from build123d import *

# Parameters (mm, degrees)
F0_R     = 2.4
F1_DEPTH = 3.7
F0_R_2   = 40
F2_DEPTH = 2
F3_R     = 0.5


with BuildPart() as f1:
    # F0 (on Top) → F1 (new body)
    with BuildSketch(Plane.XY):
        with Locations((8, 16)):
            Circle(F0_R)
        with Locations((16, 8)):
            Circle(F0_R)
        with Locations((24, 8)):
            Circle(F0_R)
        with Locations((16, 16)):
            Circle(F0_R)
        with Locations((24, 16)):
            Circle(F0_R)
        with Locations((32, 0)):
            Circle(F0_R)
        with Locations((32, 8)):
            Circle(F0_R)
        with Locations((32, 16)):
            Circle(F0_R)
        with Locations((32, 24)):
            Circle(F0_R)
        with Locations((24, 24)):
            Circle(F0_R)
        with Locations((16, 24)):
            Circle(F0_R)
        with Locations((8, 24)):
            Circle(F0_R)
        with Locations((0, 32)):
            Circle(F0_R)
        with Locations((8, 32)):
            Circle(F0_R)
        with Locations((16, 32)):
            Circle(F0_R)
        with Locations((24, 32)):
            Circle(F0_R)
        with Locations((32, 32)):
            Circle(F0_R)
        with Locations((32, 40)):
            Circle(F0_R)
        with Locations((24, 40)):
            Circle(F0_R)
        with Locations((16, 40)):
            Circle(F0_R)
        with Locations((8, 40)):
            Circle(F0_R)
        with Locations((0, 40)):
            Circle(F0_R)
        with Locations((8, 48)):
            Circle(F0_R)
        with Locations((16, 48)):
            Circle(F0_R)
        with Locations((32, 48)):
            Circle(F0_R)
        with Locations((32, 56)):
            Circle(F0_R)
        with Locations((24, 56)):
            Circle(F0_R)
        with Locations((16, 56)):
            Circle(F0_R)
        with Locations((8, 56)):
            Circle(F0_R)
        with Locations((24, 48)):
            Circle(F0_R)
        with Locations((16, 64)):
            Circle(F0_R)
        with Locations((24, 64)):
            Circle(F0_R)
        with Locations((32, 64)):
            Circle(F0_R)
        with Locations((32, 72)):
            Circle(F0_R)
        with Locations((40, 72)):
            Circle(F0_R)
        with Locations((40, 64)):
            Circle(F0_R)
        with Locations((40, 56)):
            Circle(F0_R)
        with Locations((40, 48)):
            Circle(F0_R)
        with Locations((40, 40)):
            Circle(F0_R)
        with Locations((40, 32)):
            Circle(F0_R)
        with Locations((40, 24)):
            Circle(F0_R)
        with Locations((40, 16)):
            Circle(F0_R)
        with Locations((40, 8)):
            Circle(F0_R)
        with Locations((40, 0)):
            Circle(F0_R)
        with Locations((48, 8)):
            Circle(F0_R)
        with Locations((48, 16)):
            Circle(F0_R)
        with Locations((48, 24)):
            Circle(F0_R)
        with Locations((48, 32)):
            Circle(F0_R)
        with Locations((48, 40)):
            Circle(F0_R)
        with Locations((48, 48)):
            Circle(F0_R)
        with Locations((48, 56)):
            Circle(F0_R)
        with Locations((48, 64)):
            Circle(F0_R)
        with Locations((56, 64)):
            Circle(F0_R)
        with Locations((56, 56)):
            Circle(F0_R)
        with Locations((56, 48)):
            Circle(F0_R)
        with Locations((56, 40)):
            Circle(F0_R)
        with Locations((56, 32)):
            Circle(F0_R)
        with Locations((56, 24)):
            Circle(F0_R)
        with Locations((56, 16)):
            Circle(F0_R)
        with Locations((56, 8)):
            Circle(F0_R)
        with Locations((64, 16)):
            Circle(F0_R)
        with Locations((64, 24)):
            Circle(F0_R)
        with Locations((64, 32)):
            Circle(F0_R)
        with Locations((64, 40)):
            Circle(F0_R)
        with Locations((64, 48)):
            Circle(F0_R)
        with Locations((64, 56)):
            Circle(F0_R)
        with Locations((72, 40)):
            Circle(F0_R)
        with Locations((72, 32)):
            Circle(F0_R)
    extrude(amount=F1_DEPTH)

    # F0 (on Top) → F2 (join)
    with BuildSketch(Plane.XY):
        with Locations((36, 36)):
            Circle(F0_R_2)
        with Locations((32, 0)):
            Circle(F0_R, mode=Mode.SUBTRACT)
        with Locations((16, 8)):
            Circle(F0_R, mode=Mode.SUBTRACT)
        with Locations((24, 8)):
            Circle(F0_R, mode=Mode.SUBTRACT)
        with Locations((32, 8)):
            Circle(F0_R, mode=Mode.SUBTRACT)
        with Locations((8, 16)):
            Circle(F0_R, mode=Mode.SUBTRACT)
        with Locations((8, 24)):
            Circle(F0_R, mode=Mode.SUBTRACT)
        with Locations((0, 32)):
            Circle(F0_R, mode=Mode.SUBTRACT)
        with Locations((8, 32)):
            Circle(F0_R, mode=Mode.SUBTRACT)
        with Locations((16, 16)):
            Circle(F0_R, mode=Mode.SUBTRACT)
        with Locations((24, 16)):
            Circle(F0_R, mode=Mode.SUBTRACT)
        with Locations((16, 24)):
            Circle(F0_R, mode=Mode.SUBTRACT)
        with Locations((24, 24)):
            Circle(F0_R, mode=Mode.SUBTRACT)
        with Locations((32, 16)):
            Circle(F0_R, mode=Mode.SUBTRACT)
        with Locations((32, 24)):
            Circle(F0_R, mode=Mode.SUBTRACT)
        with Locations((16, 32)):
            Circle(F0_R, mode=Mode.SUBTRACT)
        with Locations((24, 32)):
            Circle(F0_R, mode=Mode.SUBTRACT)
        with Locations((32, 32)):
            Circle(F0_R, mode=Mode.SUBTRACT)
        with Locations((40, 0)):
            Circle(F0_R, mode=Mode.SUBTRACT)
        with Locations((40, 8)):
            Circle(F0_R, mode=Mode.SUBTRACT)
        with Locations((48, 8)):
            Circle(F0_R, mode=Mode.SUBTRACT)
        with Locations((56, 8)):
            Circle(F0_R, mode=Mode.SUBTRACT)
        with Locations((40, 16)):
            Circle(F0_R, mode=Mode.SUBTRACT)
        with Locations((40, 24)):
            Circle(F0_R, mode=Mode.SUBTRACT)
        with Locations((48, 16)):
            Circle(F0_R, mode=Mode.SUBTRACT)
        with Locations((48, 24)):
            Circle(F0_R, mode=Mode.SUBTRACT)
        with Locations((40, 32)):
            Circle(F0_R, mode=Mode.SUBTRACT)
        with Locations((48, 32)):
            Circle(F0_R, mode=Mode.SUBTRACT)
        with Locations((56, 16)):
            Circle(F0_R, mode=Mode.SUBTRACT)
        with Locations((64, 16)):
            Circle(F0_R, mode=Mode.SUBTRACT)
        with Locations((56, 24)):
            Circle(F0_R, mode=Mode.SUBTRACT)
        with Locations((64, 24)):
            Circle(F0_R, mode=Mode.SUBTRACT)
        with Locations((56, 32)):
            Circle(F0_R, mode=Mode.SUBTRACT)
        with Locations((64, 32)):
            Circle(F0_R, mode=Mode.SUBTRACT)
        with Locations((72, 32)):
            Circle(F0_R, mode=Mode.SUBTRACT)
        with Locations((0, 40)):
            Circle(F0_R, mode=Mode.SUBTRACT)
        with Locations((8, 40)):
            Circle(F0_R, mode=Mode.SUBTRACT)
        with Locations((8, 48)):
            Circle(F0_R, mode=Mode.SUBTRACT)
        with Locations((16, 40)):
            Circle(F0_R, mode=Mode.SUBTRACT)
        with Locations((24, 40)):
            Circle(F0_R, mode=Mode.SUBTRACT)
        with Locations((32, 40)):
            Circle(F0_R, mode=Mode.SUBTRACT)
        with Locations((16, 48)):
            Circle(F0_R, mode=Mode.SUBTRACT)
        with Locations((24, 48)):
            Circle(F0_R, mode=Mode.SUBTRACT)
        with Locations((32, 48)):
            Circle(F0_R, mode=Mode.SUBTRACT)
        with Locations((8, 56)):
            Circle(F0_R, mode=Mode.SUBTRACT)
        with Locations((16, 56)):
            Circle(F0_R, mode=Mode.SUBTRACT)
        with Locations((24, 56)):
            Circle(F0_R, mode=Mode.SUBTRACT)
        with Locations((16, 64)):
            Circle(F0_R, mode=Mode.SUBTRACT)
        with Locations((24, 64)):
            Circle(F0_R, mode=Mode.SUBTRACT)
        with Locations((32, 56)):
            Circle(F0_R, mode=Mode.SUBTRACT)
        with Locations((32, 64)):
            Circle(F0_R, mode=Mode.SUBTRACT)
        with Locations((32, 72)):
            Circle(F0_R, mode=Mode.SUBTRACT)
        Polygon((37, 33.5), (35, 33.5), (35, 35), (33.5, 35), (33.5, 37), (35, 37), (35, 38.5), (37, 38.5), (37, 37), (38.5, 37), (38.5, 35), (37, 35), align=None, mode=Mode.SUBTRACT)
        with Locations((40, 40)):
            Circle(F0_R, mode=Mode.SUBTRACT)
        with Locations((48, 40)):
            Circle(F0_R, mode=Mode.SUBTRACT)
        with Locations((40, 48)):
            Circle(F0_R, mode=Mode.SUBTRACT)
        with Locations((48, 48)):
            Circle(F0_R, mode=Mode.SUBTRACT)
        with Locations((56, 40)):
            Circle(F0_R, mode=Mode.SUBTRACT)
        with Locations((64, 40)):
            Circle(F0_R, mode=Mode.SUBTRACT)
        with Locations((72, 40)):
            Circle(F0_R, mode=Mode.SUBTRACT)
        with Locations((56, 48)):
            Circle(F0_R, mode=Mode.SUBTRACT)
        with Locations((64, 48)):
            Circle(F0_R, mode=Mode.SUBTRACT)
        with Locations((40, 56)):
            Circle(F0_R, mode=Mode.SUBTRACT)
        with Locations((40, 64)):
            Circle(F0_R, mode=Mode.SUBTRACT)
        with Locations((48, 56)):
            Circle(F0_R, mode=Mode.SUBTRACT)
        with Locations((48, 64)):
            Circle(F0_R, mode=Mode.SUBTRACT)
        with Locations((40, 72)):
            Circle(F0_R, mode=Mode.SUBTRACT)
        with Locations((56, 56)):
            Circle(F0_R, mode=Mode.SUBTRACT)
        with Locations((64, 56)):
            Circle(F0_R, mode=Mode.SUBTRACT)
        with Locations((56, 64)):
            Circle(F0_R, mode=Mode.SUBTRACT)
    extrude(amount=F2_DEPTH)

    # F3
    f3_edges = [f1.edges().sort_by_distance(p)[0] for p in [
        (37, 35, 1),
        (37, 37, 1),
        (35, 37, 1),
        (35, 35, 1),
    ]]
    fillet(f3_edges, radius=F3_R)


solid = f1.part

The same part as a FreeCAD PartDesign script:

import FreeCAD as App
import Part
import Sketcher
Q = App.Units.Quantity


def edges_at(feature, points):
    """Names of the edges that pass closest to the given points."""
    edges = feature.Shape.Edges
    near = lambda p: min(range(len(edges)), key=lambda i: edges[i].distToShape(Part.Vertex(*p))[0])
    return sorted({f"Edge{near(p) + 1}" for p in points})

doc = App.newDocument("Part")
params = doc.addObject("Spreadsheet::Sheet", "Params")
for row, (alias, value) in enumerate([
    ("sketch1_diameter", "4.8 mm"),
    ("pad1_length", "3.7 mm"),
    ("sketch2_diameter", "80 mm"),
    ("sketch2_diameter2", "4.8 mm"),
    ("sketch2_width", "2 mm"),
    ("sketch2_width2", "1.5 mm"),
    ("pad2_length", "2 mm"),
    ("fillet_radius", "0.5 mm"),
], start=1):
    params.set(f"A{row}", alias)
    params.set(f"B{row}", "=" + value)
    params.setAlias(f"B{row}", alias)

body = doc.addObject("PartDesign::Body", "Body")
body.AllowCompound = True

# Sketch on XY plane
sketch1 = body.newObject("Sketcher::SketchObject", "Sketch")
sketch1.AttachmentSupport = (doc.getObject("XY_Plane"), [""])
sketch1.MapMode = "FlatFace"
sketch1.addGeometry([
    Part.Circle(App.Vector(8, 16, 0), App.Vector(0, 0, 1), 2.4),  # 0
    Part.Circle(App.Vector(16, 8, 0), App.Vector(0, 0, 1), 2.4),  # 1
    Part.Circle(App.Vector(24, 8, 0), App.Vector(0, 0, 1), 2.4),  # 2
    Part.Circle(App.Vector(16, 16, 0), App.Vector(0, 0, 1), 2.4),  # 3
    Part.Circle(App.Vector(24, 16, 0), App.Vector(0, 0, 1), 2.4),  # 4
    Part.Circle(App.Vector(32, 0, 0), App.Vector(0, 0, 1), 2.4),  # 5
    Part.Circle(App.Vector(32, 8, 0), App.Vector(0, 0, 1), 2.4),  # 6
    Part.Circle(App.Vector(32, 16, 0), App.Vector(0, 0, 1), 2.4),  # 7
    Part.Circle(App.Vector(32, 24, 0), App.Vector(0, 0, 1), 2.4),  # 8
    Part.Circle(App.Vector(24, 24, 0), App.Vector(0, 0, 1), 2.4),  # 9
    Part.Circle(App.Vector(16, 24, 0), App.Vector(0, 0, 1), 2.4),  # 10
    Part.Circle(App.Vector(8, 24, 0), App.Vector(0, 0, 1), 2.4),  # 11
    Part.Circle(App.Vector(0, 32, 0), App.Vector(0, 0, 1), 2.4),  # 12
    Part.Circle(App.Vector(8, 32, 0), App.Vector(0, 0, 1), 2.4),  # 13
    Part.Circle(App.Vector(16, 32, 0), App.Vector(0, 0, 1), 2.4),  # 14
    Part.Circle(App.Vector(24, 32, 0), App.Vector(0, 0, 1), 2.4),  # 15
    Part.Circle(App.Vector(32, 32, 0), App.Vector(0, 0, 1), 2.4),  # 16
    Part.Circle(App.Vector(32, 40, 0), App.Vector(0, 0, 1), 2.4),  # 17
    Part.Circle(App.Vector(24, 40, 0), App.Vector(0, 0, 1), 2.4),  # 18
    Part.Circle(App.Vector(16, 40, 0), App.Vector(0, 0, 1), 2.4),  # 19
    Part.Circle(App.Vector(8, 40, 0), App.Vector(0, 0, 1), 2.4),  # 20
    Part.Circle(App.Vector(0, 40, 0), App.Vector(0, 0, 1), 2.4),  # 21
    Part.Circle(App.Vector(8, 48, 0), App.Vector(0, 0, 1), 2.4),  # 22
    Part.Circle(App.Vector(16, 48, 0), App.Vector(0, 0, 1), 2.4),  # 23
    Part.Circle(App.Vector(32, 48, 0), App.Vector(0, 0, 1), 2.4),  # 24
    Part.Circle(App.Vector(32, 56, 0), App.Vector(0, 0, 1), 2.4),  # 25
    Part.Circle(App.Vector(24, 56, 0), App.Vector(0, 0, 1), 2.4),  # 26
    Part.Circle(App.Vector(16, 56, 0), App.Vector(0, 0, 1), 2.4),  # 27
    Part.Circle(App.Vector(8, 56, 0), App.Vector(0, 0, 1), 2.4),  # 28
    Part.Circle(App.Vector(24, 48, 0), App.Vector(0, 0, 1), 2.4),  # 29
    Part.Circle(App.Vector(16, 64, 0), App.Vector(0, 0, 1), 2.4),  # 30
    Part.Circle(App.Vector(24, 64, 0), App.Vector(0, 0, 1), 2.4),  # 31
    Part.Circle(App.Vector(32, 64, 0), App.Vector(0, 0, 1), 2.4),  # 32
    Part.Circle(App.Vector(32, 72, 0), App.Vector(0, 0, 1), 2.4),  # 33
    Part.Circle(App.Vector(40, 72, 0), App.Vector(0, 0, 1), 2.4),  # 34
    Part.Circle(App.Vector(40, 64, 0), App.Vector(0, 0, 1), 2.4),  # 35
    Part.Circle(App.Vector(40, 56, 0), App.Vector(0, 0, 1), 2.4),  # 36
    Part.Circle(App.Vector(40, 48, 0), App.Vector(0, 0, 1), 2.4),  # 37
    Part.Circle(App.Vector(40, 40, 0), App.Vector(0, 0, 1), 2.4),  # 38
    Part.Circle(App.Vector(40, 32, 0), App.Vector(0, 0, 1), 2.4),  # 39
    Part.Circle(App.Vector(40, 24, 0), App.Vector(0, 0, 1), 2.4),  # 40
    Part.Circle(App.Vector(40, 16, 0), App.Vector(0, 0, 1), 2.4),  # 41
    Part.Circle(App.Vector(40, 8, 0), App.Vector(0, 0, 1), 2.4),  # 42
    Part.Circle(App.Vector(40, 0, 0), App.Vector(0, 0, 1), 2.4),  # 43
    Part.Circle(App.Vector(48, 8, 0), App.Vector(0, 0, 1), 2.4),  # 44
    Part.Circle(App.Vector(48, 16, 0), App.Vector(0, 0, 1), 2.4),  # 45
    Part.Circle(App.Vector(48, 24, 0), App.Vector(0, 0, 1), 2.4),  # 46
    Part.Circle(App.Vector(48, 32, 0), App.Vector(0, 0, 1), 2.4),  # 47
    Part.Circle(App.Vector(48, 40, 0), App.Vector(0, 0, 1), 2.4),  # 48
    Part.Circle(App.Vector(48, 48, 0), App.Vector(0, 0, 1), 2.4),  # 49
    Part.Circle(App.Vector(48, 56, 0), App.Vector(0, 0, 1), 2.4),  # 50
    Part.Circle(App.Vector(48, 64, 0), App.Vector(0, 0, 1), 2.4),  # 51
    Part.Circle(App.Vector(56, 64, 0), App.Vector(0, 0, 1), 2.4),  # 52
    Part.Circle(App.Vector(56, 56, 0), App.Vector(0, 0, 1), 2.4),  # 53
    Part.Circle(App.Vector(56, 48, 0), App.Vector(0, 0, 1), 2.4),  # 54
    Part.Circle(App.Vector(56, 40, 0), App.Vector(0, 0, 1), 2.4),  # 55
    Part.Circle(App.Vector(56, 32, 0), App.Vector(0, 0, 1), 2.4),  # 56
    Part.Circle(App.Vector(56, 24, 0), App.Vector(0, 0, 1), 2.4),  # 57
    Part.Circle(App.Vector(56, 16, 0), App.Vector(0, 0, 1), 2.4),  # 58
    Part.Circle(App.Vector(56, 8, 0), App.Vector(0, 0, 1), 2.4),  # 59
    Part.Circle(App.Vector(64, 16, 0), App.Vector(0, 0, 1), 2.4),  # 60
    Part.Circle(App.Vector(64, 24, 0), App.Vector(0, 0, 1), 2.4),  # 61
    Part.Circle(App.Vector(64, 32, 0), App.Vector(0, 0, 1), 2.4),  # 62
    Part.Circle(App.Vector(64, 40, 0), App.Vector(0, 0, 1), 2.4),  # 63
    Part.Circle(App.Vector(64, 48, 0), App.Vector(0, 0, 1), 2.4),  # 64
    Part.Circle(App.Vector(64, 56, 0), App.Vector(0, 0, 1), 2.4),  # 65
    Part.Circle(App.Vector(72, 40, 0), App.Vector(0, 0, 1), 2.4),  # 66
    Part.Circle(App.Vector(72, 32, 0), App.Vector(0, 0, 1), 2.4),  # 67
], False)
sketch1.addConstraint([
    Sketcher.Constraint("Equal", 0, 1),
    Sketcher.Constraint("Equal", 1, 2),
    Sketcher.Constraint("Equal", 2, 3),
    Sketcher.Constraint("Equal", 3, 4),
    Sketcher.Constraint("Equal", 4, 5),
    Sketcher.Constraint("Equal", 5, 6),
    Sketcher.Constraint("Equal", 6, 7),
    Sketcher.Constraint("Equal", 7, 8),
    Sketcher.Constraint("Equal", 8, 9),
    Sketcher.Constraint("Equal", 9, 10),
    Sketcher.Constraint("Equal", 10, 11),
    Sketcher.Constraint("Equal", 11, 12),
    Sketcher.Constraint("Equal", 12, 13),
    Sketcher.Constraint("Equal", 13, 14),
    Sketcher.Constraint("Equal", 14, 15),
    Sketcher.Constraint("Equal", 15, 16),
    Sketcher.Constraint("Equal", 16, 17),
    Sketcher.Constraint("Equal", 17, 18),
    Sketcher.Constraint("Equal", 18, 19),
    Sketcher.Constraint("Equal", 19, 20),
    Sketcher.Constraint("Equal", 20, 21),
    Sketcher.Constraint("Equal", 21, 22),
    Sketcher.Constraint("Equal", 22, 23),
    Sketcher.Constraint("Equal", 23, 24),
    Sketcher.Constraint("Equal", 24, 25),
    Sketcher.Constraint("Equal", 25, 26),
    Sketcher.Constraint("Equal", 26, 27),
    Sketcher.Constraint("Equal", 27, 28),
    Sketcher.Constraint("Equal", 28, 29),
    Sketcher.Constraint("Equal", 29, 30),
    Sketcher.Constraint("Equal", 30, 31),
    Sketcher.Constraint("Equal", 31, 32),
    Sketcher.Constraint("Equal", 32, 33),
    Sketcher.Constraint("Equal", 33, 34),
    Sketcher.Constraint("Equal", 34, 35),
    Sketcher.Constraint("Equal", 35, 36),
    Sketcher.Constraint("Equal", 36, 37),
    Sketcher.Constraint("Equal", 37, 38),
    Sketcher.Constraint("Equal", 38, 39),
    Sketcher.Constraint("Equal", 39, 40),
    Sketcher.Constraint("Equal", 40, 41),
    Sketcher.Constraint("Equal", 41, 42),
    Sketcher.Constraint("Equal", 42, 43),
    Sketcher.Constraint("Equal", 43, 44),
    Sketcher.Constraint("Equal", 44, 45),
    Sketcher.Constraint("Equal", 45, 46),
    Sketcher.Constraint("Equal", 46, 47),
    Sketcher.Constraint("Equal", 47, 48),
    Sketcher.Constraint("Equal", 48, 49),
    Sketcher.Constraint("Equal", 49, 50),
    Sketcher.Constraint("Equal", 50, 51),
    Sketcher.Constraint("Equal", 51, 52),
    Sketcher.Constraint("Equal", 52, 53),
    Sketcher.Constraint("Equal", 53, 54),
    Sketcher.Constraint("Equal", 54, 55),
    Sketcher.Constraint("Equal", 55, 56),
    Sketcher.Constraint("Equal", 56, 57),
    Sketcher.Constraint("Equal", 57, 58),
    Sketcher.Constraint("Equal", 58, 59),
    Sketcher.Constraint("Equal", 59, 60),
    Sketcher.Constraint("Equal", 60, 61),
    Sketcher.Constraint("Equal", 61, 62),
    Sketcher.Constraint("Equal", 62, 63),
    Sketcher.Constraint("Equal", 63, 64),
    Sketcher.Constraint("Equal", 64, 65),
    Sketcher.Constraint("Equal", 65, 66),
    Sketcher.Constraint("Equal", 66, 67),
    Sketcher.Constraint("PointOnObject", 5, 3, -1),
    Sketcher.Constraint("PointOnObject", 12, 3, -2),
    Sketcher.Constraint("PointOnObject", 21, 3, -2),
    Sketcher.Constraint("PointOnObject", 43, 3, -1),
    Sketcher.Constraint("Horizontal", 1, 3, 2, 3),
    Sketcher.Constraint("Horizontal", 0, 3, 3, 3),
    Sketcher.Constraint("Horizontal", 3, 3, 4, 3),
    Sketcher.Constraint("Horizontal", 2, 3, 6, 3),
    Sketcher.Constraint("Horizontal", 4, 3, 7, 3),
    Sketcher.Constraint("Horizontal", 8, 3, 9, 3),
    Sketcher.Constraint("Horizontal", 9, 3, 10, 3),
    Sketcher.Constraint("Horizontal", 10, 3, 11, 3),
    Sketcher.Constraint("Horizontal", 12, 3, 13, 3),
    Sketcher.Constraint("Horizontal", 13, 3, 14, 3),
    Sketcher.Constraint("Horizontal", 14, 3, 15, 3),
    Sketcher.Constraint("Horizontal", 15, 3, 16, 3),
    Sketcher.Constraint("Horizontal", 17, 3, 18, 3),
    Sketcher.Constraint("Horizontal", 18, 3, 19, 3),
    Sketcher.Constraint("Horizontal", 19, 3, 20, 3),
    Sketcher.Constraint("Horizontal", 20, 3, 21, 3),
    Sketcher.Constraint("Horizontal", 22, 3, 23, 3),
    Sketcher.Constraint("Horizontal", 23, 3, 24, 3),
    Sketcher.Constraint("Horizontal", 25, 3, 26, 3),
    Sketcher.Constraint("Horizontal", 26, 3, 27, 3),
    Sketcher.Constraint("Horizontal", 27, 3, 28, 3),
    Sketcher.Constraint("Horizontal", 24, 3, 29, 3),
    Sketcher.Constraint("Horizontal", 30, 3, 31, 3),
    Sketcher.Constraint("Horizontal", 31, 3, 32, 3),
    Sketcher.Constraint("Horizontal", 33, 3, 34, 3),
    Sketcher.Constraint("Horizontal", 32, 3, 35, 3),
    Sketcher.Constraint("Horizontal", 28, 3, 36, 3),
    Sketcher.Constraint("Horizontal", 29, 3, 37, 3),
    Sketcher.Constraint("Horizontal", 21, 3, 38, 3),
    Sketcher.Constraint("Horizontal", 16, 3, 39, 3),
    Sketcher.Constraint("Horizontal", 11, 3, 40, 3),
    Sketcher.Constraint("Horizontal", 7, 3, 41, 3),
    Sketcher.Constraint("Horizontal", 6, 3, 42, 3),
    Sketcher.Constraint("Horizontal", 42, 3, 44, 3),
    Sketcher.Constraint("Horizontal", 41, 3, 45, 3),
    Sketcher.Constraint("Horizontal", 40, 3, 46, 3),
    Sketcher.Constraint("Horizontal", 39, 3, 47, 3),
    Sketcher.Constraint("Horizontal", 38, 3, 48, 3),
    Sketcher.Constraint("Horizontal", 37, 3, 49, 3),
    Sketcher.Constraint("Horizontal", 36, 3, 50, 3),
    Sketcher.Constraint("Horizontal", 35, 3, 51, 3),
    Sketcher.Constraint("Horizontal", 51, 3, 52, 3),
    Sketcher.Constraint("Horizontal", 50, 3, 53, 3),
    Sketcher.Constraint("Horizontal", 49, 3, 54, 3),
    Sketcher.Constraint("Horizontal", 48, 3, 55, 3),
    Sketcher.Constraint("Horizontal", 47, 3, 56, 3),
    Sketcher.Constraint("Horizontal", 46, 3, 57, 3),
    Sketcher.Constraint("Horizontal", 45, 3, 58, 3),
    Sketcher.Constraint("Horizontal", 44, 3, 59, 3),
    Sketcher.Constraint("Horizontal", 58, 3, 60, 3),
    Sketcher.Constraint("Horizontal", 57, 3, 61, 3),
    Sketcher.Constraint("Horizontal", 56, 3, 62, 3),
    Sketcher.Constraint("Horizontal", 55, 3, 63, 3),
    Sketcher.Constraint("Horizontal", 54, 3, 64, 3),
    Sketcher.Constraint("Horizontal", 53, 3, 65, 3),
    Sketcher.Constraint("Horizontal", 63, 3, 66, 3),
    Sketcher.Constraint("Horizontal", 62, 3, 67, 3),
    Sketcher.Constraint("Vertical", 1, 3, 3, 3),
    Sketcher.Constraint("Vertical", 2, 3, 4, 3),
    Sketcher.Constraint("Vertical", 5, 3, 6, 3),
    Sketcher.Constraint("Vertical", 6, 3, 7, 3),
    Sketcher.Constraint("Vertical", 7, 3, 8, 3),
    Sketcher.Constraint("Vertical", 4, 3, 9, 3),
    Sketcher.Constraint("Vertical", 3, 3, 10, 3),
    Sketcher.Constraint("Vertical", 0, 3, 11, 3),
    Sketcher.Constraint("Vertical", 11, 3, 13, 3),
    Sketcher.Constraint("Vertical", 10, 3, 14, 3),
    Sketcher.Constraint("Vertical", 9, 3, 15, 3),
    Sketcher.Constraint("Vertical", 8, 3, 16, 3),
    Sketcher.Constraint("Vertical", 16, 3, 17, 3),
    Sketcher.Constraint("Vertical", 15, 3, 18, 3),
    Sketcher.Constraint("Vertical", 14, 3, 19, 3),
    Sketcher.Constraint("Vertical", 13, 3, 20, 3),
    Sketcher.Constraint("Vertical", 20, 3, 22, 3),
    Sketcher.Constraint("Vertical", 19, 3, 23, 3),
    Sketcher.Constraint("Vertical", 17, 3, 24, 3),
    Sketcher.Constraint("Vertical", 24, 3, 25, 3),
    Sketcher.Constraint("Vertical", 18, 3, 26, 3),
    Sketcher.Constraint("Vertical", 23, 3, 27, 3),
    Sketcher.Constraint("Vertical", 22, 3, 28, 3),
    Sketcher.Constraint("Vertical", 26, 3, 29, 3),
    Sketcher.Constraint("Vertical", 27, 3, 30, 3),
    Sketcher.Constraint("Vertical", 29, 3, 31, 3),
    Sketcher.Constraint("Vertical", 25, 3, 32, 3),
    Sketcher.Constraint("Vertical", 32, 3, 33, 3),
    Sketcher.Constraint("Vertical", 34, 3, 35, 3),
    Sketcher.Constraint("Vertical", 35, 3, 36, 3),
    Sketcher.Constraint("Vertical", 36, 3, 37, 3),
    Sketcher.Constraint("Vertical", 37, 3, 38, 3),
    Sketcher.Constraint("Vertical", 38, 3, 39, 3),
    Sketcher.Constraint("Vertical", 39, 3, 40, 3),
    Sketcher.Constraint("Vertical", 40, 3, 41, 3),
    Sketcher.Constraint("Vertical", 41, 3, 42, 3),
    Sketcher.Constraint("Vertical", 42, 3, 43, 3),
    Sketcher.Constraint("Vertical", 44, 3, 45, 3),
    Sketcher.Constraint("Vertical", 45, 3, 46, 3),
    Sketcher.Constraint("Vertical", 46, 3, 47, 3),
    Sketcher.Constraint("Vertical", 47, 3, 48, 3),
    Sketcher.Constraint("Vertical", 48, 3, 49, 3),
    Sketcher.Constraint("Vertical", 49, 3, 50, 3),
    Sketcher.Constraint("Vertical", 50, 3, 51, 3),
    Sketcher.Constraint("Vertical", 52, 3, 53, 3),
    Sketcher.Constraint("Vertical", 53, 3, 54, 3),
    Sketcher.Constraint("Vertical", 54, 3, 55, 3),
    Sketcher.Constraint("Vertical", 55, 3, 56, 3),
    Sketcher.Constraint("Vertical", 56, 3, 57, 3),
    Sketcher.Constraint("Vertical", 57, 3, 58, 3),
    Sketcher.Constraint("Vertical", 58, 3, 59, 3),
    Sketcher.Constraint("Vertical", 60, 3, 61, 3),
    Sketcher.Constraint("Vertical", 61, 3, 62, 3),
    Sketcher.Constraint("Vertical", 62, 3, 63, 3),
    Sketcher.Constraint("Vertical", 63, 3, 64, 3),
    Sketcher.Constraint("Vertical", 64, 3, 65, 3),
    Sketcher.Constraint("Vertical", 66, 3, 67, 3),
    Sketcher.Constraint("Diameter", 0, Q("4.8 mm")),
    Sketcher.Constraint("DistanceX", -1, 1, 0, 3, Q("8 mm")),
    Sketcher.Constraint("DistanceY", -1, 1, 0, 3, Q("16 mm")),
    Sketcher.Constraint("DistanceX", -1, 1, 1, 3, Q("16 mm")),
    Sketcher.Constraint("DistanceY", -1, 1, 1, 3, Q("8 mm")),
    Sketcher.Constraint("DistanceX", -1, 1, 2, 3, Q("24 mm")),
    Sketcher.Constraint("DistanceX", -1, 1, 5, 3, Q("32 mm")),
    Sketcher.Constraint("DistanceY", -1, 1, 8, 3, Q("24 mm")),
    Sketcher.Constraint("DistanceY", -1, 1, 12, 3, Q("32 mm")),
    Sketcher.Constraint("DistanceY", -1, 1, 17, 3, Q("40 mm")),
    Sketcher.Constraint("DistanceY", -1, 1, 22, 3, Q("48 mm")),
    Sketcher.Constraint("DistanceY", -1, 1, 25, 3, Q("56 mm")),
    Sketcher.Constraint("DistanceY", -1, 1, 30, 3, Q("64 mm")),
    Sketcher.Constraint("DistanceY", -1, 1, 33, 3, Q("72 mm")),
    Sketcher.Constraint("DistanceX", -1, 1, 34, 3, Q("40 mm")),
    Sketcher.Constraint("DistanceX", -1, 1, 44, 3, Q("48 mm")),
    Sketcher.Constraint("DistanceX", -1, 1, 52, 3, Q("56 mm")),
    Sketcher.Constraint("DistanceX", -1, 1, 60, 3, Q("64 mm")),
    Sketcher.Constraint("DistanceX", -1, 1, 66, 3, Q("72 mm")),
])
sketch1.setExpression("Constraints[185]", "Params.sketch1_diameter")
pad1 = body.newObject("PartDesign::Pad", "Pad")
pad1.Profile = sketch1
pad1.setExpression("Length", "Params.pad1_length")

# Sketch on XY plane
sketch2 = body.newObject("Sketcher::SketchObject", "Sketch001")
sketch2.AttachmentSupport = (doc.getObject("XY_Plane"), [""])
sketch2.MapMode = "FlatFace"
sketch2.addGeometry([
    Part.Circle(App.Vector(36, 36, 0), App.Vector(0, 0, 1), 40),  # 0
    Part.Circle(App.Vector(16, 8, 0), App.Vector(0, 0, 1), 2.4),  # 1
    Part.Circle(App.Vector(8, 16, 0), App.Vector(0, 0, 1), 2.4),  # 2
    Part.Circle(App.Vector(16, 16, 0), App.Vector(0, 0, 1), 2.4),  # 3
    Part.Circle(App.Vector(32, 0, 0), App.Vector(0, 0, 1), 2.4),  # 4
    Part.Circle(App.Vector(24, 8, 0), App.Vector(0, 0, 1), 2.4),  # 5
    Part.Circle(App.Vector(24, 16, 0), App.Vector(0, 0, 1), 2.4),  # 6
    Part.Circle(App.Vector(32, 8, 0), App.Vector(0, 0, 1), 2.4),  # 7
    Part.Circle(App.Vector(32, 16, 0), App.Vector(0, 0, 1), 2.4),  # 8
    Part.Circle(App.Vector(8, 24, 0), App.Vector(0, 0, 1), 2.4),  # 9
    Part.Circle(App.Vector(16, 24, 0), App.Vector(0, 0, 1), 2.4),  # 10
    Part.Circle(App.Vector(0, 32, 0), App.Vector(0, 0, 1), 2.4),  # 11
    Part.Circle(App.Vector(8, 32, 0), App.Vector(0, 0, 1), 2.4),  # 12
    Part.Circle(App.Vector(16, 32, 0), App.Vector(0, 0, 1), 2.4),  # 13
    Part.Circle(App.Vector(24, 24, 0), App.Vector(0, 0, 1), 2.4),  # 14
    Part.Circle(App.Vector(32, 24, 0), App.Vector(0, 0, 1), 2.4),  # 15
    Part.Circle(App.Vector(24, 32, 0), App.Vector(0, 0, 1), 2.4),  # 16
    Part.Circle(App.Vector(32, 32, 0), App.Vector(0, 0, 1), 2.4),  # 17
    Part.Circle(App.Vector(40, 0, 0), App.Vector(0, 0, 1), 2.4),  # 18
    Part.Circle(App.Vector(40, 8, 0), App.Vector(0, 0, 1), 2.4),  # 19
    Part.Circle(App.Vector(40, 16, 0), App.Vector(0, 0, 1), 2.4),  # 20
    Part.Circle(App.Vector(48, 8, 0), App.Vector(0, 0, 1), 2.4),  # 21
    Part.Circle(App.Vector(48, 16, 0), App.Vector(0, 0, 1), 2.4),  # 22
    Part.Circle(App.Vector(56, 8, 0), App.Vector(0, 0, 1), 2.4),  # 23
    Part.Circle(App.Vector(56, 16, 0), App.Vector(0, 0, 1), 2.4),  # 24
    Part.Circle(App.Vector(64, 16, 0), App.Vector(0, 0, 1), 2.4),  # 25
    Part.Circle(App.Vector(40, 24, 0), App.Vector(0, 0, 1), 2.4),  # 26
    Part.Circle(App.Vector(48, 24, 0), App.Vector(0, 0, 1), 2.4),  # 27
    Part.Circle(App.Vector(40, 32, 0), App.Vector(0, 0, 1), 2.4),  # 28
    Part.Circle(App.Vector(48, 32, 0), App.Vector(0, 0, 1), 2.4),  # 29
    Part.Circle(App.Vector(56, 24, 0), App.Vector(0, 0, 1), 2.4),  # 30
    Part.Circle(App.Vector(64, 24, 0), App.Vector(0, 0, 1), 2.4),  # 31
    Part.Circle(App.Vector(56, 32, 0), App.Vector(0, 0, 1), 2.4),  # 32
    Part.Circle(App.Vector(64, 32, 0), App.Vector(0, 0, 1), 2.4),  # 33
    Part.Circle(App.Vector(72, 32, 0), App.Vector(0, 0, 1), 2.4),  # 34
    Part.Circle(App.Vector(0, 40, 0), App.Vector(0, 0, 1), 2.4),  # 35
    Part.Circle(App.Vector(8, 40, 0), App.Vector(0, 0, 1), 2.4),  # 36
    Part.Circle(App.Vector(16, 40, 0), App.Vector(0, 0, 1), 2.4),  # 37
    Part.Circle(App.Vector(8, 48, 0), App.Vector(0, 0, 1), 2.4),  # 38
    Part.Circle(App.Vector(16, 48, 0), App.Vector(0, 0, 1), 2.4),  # 39
    Part.Circle(App.Vector(24, 40, 0), App.Vector(0, 0, 1), 2.4),  # 40
    Part.Circle(App.Vector(32, 40, 0), App.Vector(0, 0, 1), 2.4),  # 41
    Part.Circle(App.Vector(24, 48, 0), App.Vector(0, 0, 1), 2.4),  # 42
    Part.Circle(App.Vector(32, 48, 0), App.Vector(0, 0, 1), 2.4),  # 43
    Part.Circle(App.Vector(8, 56, 0), App.Vector(0, 0, 1), 2.4),  # 44
    Part.Circle(App.Vector(16, 56, 0), App.Vector(0, 0, 1), 2.4),  # 45
    Part.Circle(App.Vector(16, 64, 0), App.Vector(0, 0, 1), 2.4),  # 46
    Part.Circle(App.Vector(24, 56, 0), App.Vector(0, 0, 1), 2.4),  # 47
    Part.Circle(App.Vector(24, 64, 0), App.Vector(0, 0, 1), 2.4),  # 48
    Part.Circle(App.Vector(32, 56, 0), App.Vector(0, 0, 1), 2.4),  # 49
    Part.Circle(App.Vector(32, 64, 0), App.Vector(0, 0, 1), 2.4),  # 50
    Part.Circle(App.Vector(32, 72, 0), App.Vector(0, 0, 1), 2.4),  # 51
    Part.LineSegment(App.Vector(37, 35, 0), App.Vector(37, 33.5, 0)),  # 52
    Part.LineSegment(App.Vector(37, 33.5, 0), App.Vector(35, 33.5, 0)),  # 53
    Part.LineSegment(App.Vector(35, 33.5, 0), App.Vector(35, 35, 0)),  # 54
    Part.LineSegment(App.Vector(35, 35, 0), App.Vector(33.5, 35, 0)),  # 55
    Part.LineSegment(App.Vector(33.5, 35, 0), App.Vector(33.5, 37, 0)),  # 56
    Part.LineSegment(App.Vector(33.5, 37, 0), App.Vector(35, 37, 0)),  # 57
    Part.LineSegment(App.Vector(35, 37, 0), App.Vector(35, 38.5, 0)),  # 58
    Part.LineSegment(App.Vector(35, 38.5, 0), App.Vector(37, 38.5, 0)),  # 59
    Part.LineSegment(App.Vector(37, 38.5, 0), App.Vector(37, 37, 0)),  # 60
    Part.LineSegment(App.Vector(37, 37, 0), App.Vector(38.5, 37, 0)),  # 61
    Part.LineSegment(App.Vector(38.5, 37, 0), App.Vector(38.5, 35, 0)),  # 62
    Part.LineSegment(App.Vector(38.5, 35, 0), App.Vector(37, 35, 0)),  # 63
    Part.Circle(App.Vector(40, 40, 0), App.Vector(0, 0, 1), 2.4),  # 64
    Part.Circle(App.Vector(48, 40, 0), App.Vector(0, 0, 1), 2.4),  # 65
    Part.Circle(App.Vector(40, 48, 0), App.Vector(0, 0, 1), 2.4),  # 66
    Part.Circle(App.Vector(48, 48, 0), App.Vector(0, 0, 1), 2.4),  # 67
    Part.Circle(App.Vector(56, 40, 0), App.Vector(0, 0, 1), 2.4),  # 68
    Part.Circle(App.Vector(64, 40, 0), App.Vector(0, 0, 1), 2.4),  # 69
    Part.Circle(App.Vector(72, 40, 0), App.Vector(0, 0, 1), 2.4),  # 70
    Part.Circle(App.Vector(56, 48, 0), App.Vector(0, 0, 1), 2.4),  # 71
    Part.Circle(App.Vector(64, 48, 0), App.Vector(0, 0, 1), 2.4),  # 72
    Part.Circle(App.Vector(40, 56, 0), App.Vector(0, 0, 1), 2.4),  # 73
    Part.Circle(App.Vector(40, 64, 0), App.Vector(0, 0, 1), 2.4),  # 74
    Part.Circle(App.Vector(48, 56, 0), App.Vector(0, 0, 1), 2.4),  # 75
    Part.Circle(App.Vector(48, 64, 0), App.Vector(0, 0, 1), 2.4),  # 76
    Part.Circle(App.Vector(40, 72, 0), App.Vector(0, 0, 1), 2.4),  # 77
    Part.Circle(App.Vector(56, 56, 0), App.Vector(0, 0, 1), 2.4),  # 78
    Part.Circle(App.Vector(64, 56, 0), App.Vector(0, 0, 1), 2.4),  # 79
    Part.Circle(App.Vector(56, 64, 0), App.Vector(0, 0, 1), 2.4),  # 80
], False)
sketch2.addConstraint([
    Sketcher.Constraint("Coincident", 52, 2, 53, 1),
    Sketcher.Constraint("Coincident", 53, 2, 54, 1),
    Sketcher.Constraint("Coincident", 54, 2, 55, 1),
    Sketcher.Constraint("Coincident", 55, 2, 56, 1),
    Sketcher.Constraint("Coincident", 56, 2, 57, 1),
    Sketcher.Constraint("Coincident", 57, 2, 58, 1),
    Sketcher.Constraint("Coincident", 58, 2, 59, 1),
    Sketcher.Constraint("Coincident", 59, 2, 60, 1),
    Sketcher.Constraint("Coincident", 60, 2, 61, 1),
    Sketcher.Constraint("Coincident", 61, 2, 62, 1),
    Sketcher.Constraint("Coincident", 62, 2, 63, 1),
    Sketcher.Constraint("Coincident", 63, 2, 52, 1),
    Sketcher.Constraint("Vertical", 52),
    Sketcher.Constraint("Horizontal", 53),
    Sketcher.Constraint("Vertical", 54),
    Sketcher.Constraint("Horizontal", 55),
    Sketcher.Constraint("Vertical", 56),
    Sketcher.Constraint("Horizontal", 57),
    Sketcher.Constraint("Vertical", 58),
    Sketcher.Constraint("Horizontal", 59),
    Sketcher.Constraint("Vertical", 60),
    Sketcher.Constraint("Horizontal", 61),
    Sketcher.Constraint("Vertical", 62),
    Sketcher.Constraint("Horizontal", 63),
    Sketcher.Constraint("Equal", 1, 2),
    Sketcher.Constraint("Equal", 2, 3),
    Sketcher.Constraint("Equal", 3, 4),
    Sketcher.Constraint("Equal", 4, 5),
    Sketcher.Constraint("Equal", 5, 6),
    Sketcher.Constraint("Equal", 6, 7),
    Sketcher.Constraint("Equal", 7, 8),
    Sketcher.Constraint("Equal", 8, 9),
    Sketcher.Constraint("Equal", 9, 10),
    Sketcher.Constraint("Equal", 10, 11),
    Sketcher.Constraint("Equal", 11, 12),
    Sketcher.Constraint("Equal", 12, 13),
    Sketcher.Constraint("Equal", 13, 14),
    Sketcher.Constraint("Equal", 14, 15),
    Sketcher.Constraint("Equal", 15, 16),
    Sketcher.Constraint("Equal", 16, 17),
    Sketcher.Constraint("Equal", 17, 18),
    Sketcher.Constraint("Equal", 18, 19),
    Sketcher.Constraint("Equal", 19, 20),
    Sketcher.Constraint("Equal", 20, 21),
    Sketcher.Constraint("Equal", 21, 22),
    Sketcher.Constraint("Equal", 22, 23),
    Sketcher.Constraint("Equal", 23, 24),
    Sketcher.Constraint("Equal", 24, 25),
    Sketcher.Constraint("Equal", 25, 26),
    Sketcher.Constraint("Equal", 26, 27),
    Sketcher.Constraint("Equal", 27, 28),
    Sketcher.Constraint("Equal", 28, 29),
    Sketcher.Constraint("Equal", 29, 30),
    Sketcher.Constraint("Equal", 30, 31),
    Sketcher.Constraint("Equal", 31, 32),
    Sketcher.Constraint("Equal", 32, 33),
    Sketcher.Constraint("Equal", 33, 34),
    Sketcher.Constraint("Equal", 34, 35),
    Sketcher.Constraint("Equal", 35, 36),
    Sketcher.Constraint("Equal", 36, 37),
    Sketcher.Constraint("Equal", 37, 38),
    Sketcher.Constraint("Equal", 38, 39),
    Sketcher.Constraint("Equal", 39, 40),
    Sketcher.Constraint("Equal", 40, 41),
    Sketcher.Constraint("Equal", 41, 42),
    Sketcher.Constraint("Equal", 42, 43),
    Sketcher.Constraint("Equal", 43, 44),
    Sketcher.Constraint("Equal", 44, 45),
    Sketcher.Constraint("Equal", 45, 46),
    Sketcher.Constraint("Equal", 46, 47),
    Sketcher.Constraint("Equal", 47, 48),
    Sketcher.Constraint("Equal", 48, 49),
    Sketcher.Constraint("Equal", 49, 50),
    Sketcher.Constraint("Equal", 50, 51),
    Sketcher.Constraint("Equal", 51, 64),
    Sketcher.Constraint("Equal", 64, 65),
    Sketcher.Constraint("Equal", 65, 66),
    Sketcher.Constraint("Equal", 66, 67),
    Sketcher.Constraint("Equal", 67, 68),
    Sketcher.Constraint("Equal", 68, 69),
    Sketcher.Constraint("Equal", 69, 70),
    Sketcher.Constraint("Equal", 70, 71),
    Sketcher.Constraint("Equal", 71, 72),
    Sketcher.Constraint("Equal", 72, 73),
    Sketcher.Constraint("Equal", 73, 74),
    Sketcher.Constraint("Equal", 74, 75),
    Sketcher.Constraint("Equal", 75, 76),
    Sketcher.Constraint("Equal", 76, 77),
    Sketcher.Constraint("Equal", 77, 78),
    Sketcher.Constraint("Equal", 78, 79),
    Sketcher.Constraint("Equal", 79, 80),
    Sketcher.Constraint("PointOnObject", 4, 3, -1),
    Sketcher.Constraint("PointOnObject", 11, 3, -2),
    Sketcher.Constraint("PointOnObject", 18, 3, -1),
    Sketcher.Constraint("PointOnObject", 35, 3, -2),
    Sketcher.Constraint("Horizontal", 2, 3, 3, 3),
    Sketcher.Constraint("Horizontal", 1, 3, 5, 3),
    Sketcher.Constraint("Horizontal", 3, 3, 6, 3),
    Sketcher.Constraint("Horizontal", 5, 3, 7, 3),
    Sketcher.Constraint("Horizontal", 6, 3, 8, 3),
    Sketcher.Constraint("Horizontal", 9, 3, 10, 3),
    Sketcher.Constraint("Horizontal", 11, 3, 12, 3),
    Sketcher.Constraint("Horizontal", 12, 3, 13, 3),
    Sketcher.Constraint("Horizontal", 10, 3, 14, 3),
    Sketcher.Constraint("Horizontal", 14, 3, 15, 3),
    Sketcher.Constraint("Horizontal", 13, 3, 16, 3),
    Sketcher.Constraint("Horizontal", 16, 3, 17, 3),
    Sketcher.Constraint("Horizontal", 7, 3, 19, 3),
    Sketcher.Constraint("Horizontal", 8, 3, 20, 3),
    Sketcher.Constraint("Horizontal", 19, 3, 21, 3),
    Sketcher.Constraint("Horizontal", 20, 3, 22, 3),
    Sketcher.Constraint("Horizontal", 21, 3, 23, 3),
    Sketcher.Constraint("Horizontal", 22, 3, 24, 3),
    Sketcher.Constraint("Horizontal", 24, 3, 25, 3),
    Sketcher.Constraint("Horizontal", 15, 3, 26, 3),
    Sketcher.Constraint("Horizontal", 26, 3, 27, 3),
    Sketcher.Constraint("Horizontal", 17, 3, 28, 3),
    Sketcher.Constraint("Horizontal", 28, 3, 29, 3),
    Sketcher.Constraint("Horizontal", 27, 3, 30, 3),
    Sketcher.Constraint("Horizontal", 30, 3, 31, 3),
    Sketcher.Constraint("Horizontal", 29, 3, 32, 3),
    Sketcher.Constraint("Horizontal", 32, 3, 33, 3),
    Sketcher.Constraint("Horizontal", 33, 3, 34, 3),
    Sketcher.Constraint("Horizontal", 35, 3, 36, 3),
    Sketcher.Constraint("Horizontal", 36, 3, 37, 3),
    Sketcher.Constraint("Horizontal", 38, 3, 39, 3),
    Sketcher.Constraint("Horizontal", 37, 3, 40, 3),
    Sketcher.Constraint("Horizontal", 40, 3, 41, 3),
    Sketcher.Constraint("Horizontal", 39, 3, 42, 3),
    Sketcher.Constraint("Horizontal", 42, 3, 43, 3),
    Sketcher.Constraint("Horizontal", 44, 3, 45, 3),
    Sketcher.Constraint("Horizontal", 45, 3, 47, 3),
    Sketcher.Constraint("Horizontal", 46, 3, 48, 3),
    Sketcher.Constraint("Horizontal", 47, 3, 49, 3),
    Sketcher.Constraint("Horizontal", 48, 3, 50, 3),
    Sketcher.Constraint("Horizontal", 41, 3, 64, 3),
    Sketcher.Constraint("Horizontal", 64, 3, 65, 3),
    Sketcher.Constraint("Horizontal", 43, 3, 66, 3),
    Sketcher.Constraint("Horizontal", 66, 3, 67, 3),
    Sketcher.Constraint("Horizontal", 65, 3, 68, 3),
    Sketcher.Constraint("Horizontal", 68, 3, 69, 3),
    Sketcher.Constraint("Horizontal", 69, 3, 70, 3),
    Sketcher.Constraint("Horizontal", 67, 3, 71, 3),
    Sketcher.Constraint("Horizontal", 71, 3, 72, 3),
    Sketcher.Constraint("Horizontal", 49, 3, 73, 3),
    Sketcher.Constraint("Horizontal", 50, 3, 74, 3),
    Sketcher.Constraint("Horizontal", 73, 3, 75, 3),
    Sketcher.Constraint("Horizontal", 74, 3, 76, 3),
    Sketcher.Constraint("Horizontal", 51, 3, 77, 3),
    Sketcher.Constraint("Horizontal", 75, 3, 78, 3),
    Sketcher.Constraint("Horizontal", 78, 3, 79, 3),
    Sketcher.Constraint("Horizontal", 76, 3, 80, 3),
    Sketcher.Constraint("Horizontal", 57, 2, 60, 2),
    Sketcher.Constraint("Horizontal", 55, 2, 62, 2),
    Sketcher.Constraint("Vertical", 1, 3, 3, 3),
    Sketcher.Constraint("Vertical", 5, 3, 6, 3),
    Sketcher.Constraint("Vertical", 4, 3, 7, 3),
    Sketcher.Constraint("Vertical", 7, 3, 8, 3),
    Sketcher.Constraint("Vertical", 2, 3, 9, 3),
    Sketcher.Constraint("Vertical", 3, 3, 10, 3),
    Sketcher.Constraint("Vertical", 9, 3, 12, 3),
    Sketcher.Constraint("Vertical", 10, 3, 13, 3),
    Sketcher.Constraint("Vertical", 6, 3, 14, 3),
    Sketcher.Constraint("Vertical", 8, 3, 15, 3),
    Sketcher.Constraint("Vertical", 14, 3, 16, 3),
    Sketcher.Constraint("Vertical", 15, 3, 17, 3),
    Sketcher.Constraint("Vertical", 18, 3, 19, 3),
    Sketcher.Constraint("Vertical", 19, 3, 20, 3),
    Sketcher.Constraint("Vertical", 21, 3, 22, 3),
    Sketcher.Constraint("Vertical", 23, 3, 24, 3),
    Sketcher.Constraint("Vertical", 20, 3, 26, 3),
    Sketcher.Constraint("Vertical", 22, 3, 27, 3),
    Sketcher.Constraint("Vertical", 26, 3, 28, 3),
    Sketcher.Constraint("Vertical", 27, 3, 29, 3),
    Sketcher.Constraint("Vertical", 24, 3, 30, 3),
    Sketcher.Constraint("Vertical", 25, 3, 31, 3),
    Sketcher.Constraint("Vertical", 30, 3, 32, 3),
    Sketcher.Constraint("Vertical", 31, 3, 33, 3),
    Sketcher.Constraint("Vertical", 12, 3, 36, 3),
    Sketcher.Constraint("Vertical", 13, 3, 37, 3),
    Sketcher.Constraint("Vertical", 36, 3, 38, 3),
    Sketcher.Constraint("Vertical", 37, 3, 39, 3),
    Sketcher.Constraint("Vertical", 16, 3, 40, 3),
    Sketcher.Constraint("Vertical", 17, 3, 41, 3),
    Sketcher.Constraint("Vertical", 40, 3, 42, 3),
    Sketcher.Constraint("Vertical", 41, 3, 43, 3),
    Sketcher.Constraint("Vertical", 38, 3, 44, 3),
    Sketcher.Constraint("Vertical", 39, 3, 45, 3),
    Sketcher.Constraint("Vertical", 45, 3, 46, 3),
    Sketcher.Constraint("Vertical", 42, 3, 47, 3),
    Sketcher.Constraint("Vertical", 47, 3, 48, 3),
    Sketcher.Constraint("Vertical", 43, 3, 49, 3),
    Sketcher.Constraint("Vertical", 49, 3, 50, 3),
    Sketcher.Constraint("Vertical", 50, 3, 51, 3),
    Sketcher.Constraint("Vertical", 28, 3, 64, 3),
    Sketcher.Constraint("Vertical", 29, 3, 65, 3),
    Sketcher.Constraint("Vertical", 64, 3, 66, 3),
    Sketcher.Constraint("Vertical", 65, 3, 67, 3),
    Sketcher.Constraint("Vertical", 32, 3, 68, 3),
    Sketcher.Constraint("Vertical", 33, 3, 69, 3),
    Sketcher.Constraint("Vertical", 34, 3, 70, 3),
    Sketcher.Constraint("Vertical", 68, 3, 71, 3),
    Sketcher.Constraint("Vertical", 69, 3, 72, 3),
    Sketcher.Constraint("Vertical", 66, 3, 73, 3),
    Sketcher.Constraint("Vertical", 73, 3, 74, 3),
    Sketcher.Constraint("Vertical", 67, 3, 75, 3),
    Sketcher.Constraint("Vertical", 75, 3, 76, 3),
    Sketcher.Constraint("Vertical", 74, 3, 77, 3),
    Sketcher.Constraint("Vertical", 71, 3, 78, 3),
    Sketcher.Constraint("Vertical", 72, 3, 79, 3),
    Sketcher.Constraint("Vertical", 78, 3, 80, 3),
    Sketcher.Constraint("Vertical", 54, 2, 57, 2),
    Sketcher.Constraint("Vertical", 52, 2, 59, 2),
    Sketcher.Constraint("Equal", 57, 61),
    Sketcher.Constraint("Equal", 63, 52),
    Sketcher.Constraint("Equal", 59, 56),
    Sketcher.Constraint("Equal", 54, 58),
    Sketcher.Constraint("Diameter", 0, Q("80 mm")),
    Sketcher.Constraint("Diameter", 1, Q("4.8 mm")),
    Sketcher.Constraint("DistanceX", 53, 2, 53, 1, Q("2 mm")),
    Sketcher.Constraint("DistanceX", 55, 2, 55, 1, Q("1.5 mm")),
    Sketcher.Constraint("DistanceX", -1, 1, 0, 3, Q("36 mm")),
    Sketcher.Constraint("DistanceY", -1, 1, 0, 3, Q("36 mm")),
    Sketcher.Constraint("DistanceX", -1, 1, 1, 3, Q("16 mm")),
    Sketcher.Constraint("DistanceY", -1, 1, 1, 3, Q("8 mm")),
    Sketcher.Constraint("DistanceX", -1, 1, 2, 3, Q("8 mm")),
    Sketcher.Constraint("DistanceY", -1, 1, 2, 3, Q("16 mm")),
    Sketcher.Constraint("DistanceX", -1, 1, 4, 3, Q("32 mm")),
    Sketcher.Constraint("DistanceX", -1, 1, 5, 3, Q("24 mm")),
    Sketcher.Constraint("DistanceY", -1, 1, 9, 3, Q("24 mm")),
    Sketcher.Constraint("DistanceY", -1, 1, 11, 3, Q("32 mm")),
    Sketcher.Constraint("DistanceX", -1, 1, 18, 3, Q("40 mm")),
    Sketcher.Constraint("DistanceX", -1, 1, 21, 3, Q("48 mm")),
    Sketcher.Constraint("DistanceX", -1, 1, 23, 3, Q("56 mm")),
    Sketcher.Constraint("DistanceX", -1, 1, 25, 3, Q("64 mm")),
    Sketcher.Constraint("DistanceX", -1, 1, 34, 3, Q("72 mm")),
    Sketcher.Constraint("DistanceY", -1, 1, 35, 3, Q("40 mm")),
    Sketcher.Constraint("DistanceY", -1, 1, 38, 3, Q("48 mm")),
    Sketcher.Constraint("DistanceY", -1, 1, 44, 3, Q("56 mm")),
    Sketcher.Constraint("DistanceY", -1, 1, 46, 3, Q("64 mm")),
    Sketcher.Constraint("DistanceY", -1, 1, 51, 3, Q("72 mm")),
    Sketcher.Constraint("DistanceX", -1, 1, 52, 2, Q("37 mm")),
    Sketcher.Constraint("DistanceY", -1, 1, 54, 2, Q("35 mm")),
])
sketch2.setExpression("Constraints[217]", "Params.sketch2_diameter")
sketch2.setExpression("Constraints[218]", "Params.sketch2_diameter2")
sketch2.setExpression("Constraints[219]", "Params.sketch2_width")
sketch2.setExpression("Constraints[220]", "Params.sketch2_width2")
pad2 = body.newObject("PartDesign::Pad", "Pad001")
pad2.Profile = sketch2
pad2.setExpression("Length", "Params.pad2_length")
doc.recompute()

fillet = body.newObject("PartDesign::Fillet", "Fillet")
fillet.Base = (pad2, edges_at(pad2, [
    (37, 35, 1),
    (37, 37, 1),
    (35, 37, 1),
    (35, 35, 1),
]))
fillet.setExpression("Radius", "Params.fillet_radius")

doc.recompute()
